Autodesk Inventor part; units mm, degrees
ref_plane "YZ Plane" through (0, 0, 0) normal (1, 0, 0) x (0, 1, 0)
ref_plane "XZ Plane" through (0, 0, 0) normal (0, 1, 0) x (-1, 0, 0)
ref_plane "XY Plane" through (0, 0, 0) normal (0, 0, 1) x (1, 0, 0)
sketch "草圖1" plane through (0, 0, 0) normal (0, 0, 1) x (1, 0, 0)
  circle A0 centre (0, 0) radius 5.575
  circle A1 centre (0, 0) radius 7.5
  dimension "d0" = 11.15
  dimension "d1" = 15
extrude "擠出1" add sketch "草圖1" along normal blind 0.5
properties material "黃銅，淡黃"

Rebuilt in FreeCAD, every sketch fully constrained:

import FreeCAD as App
import Part
import Sketcher

V = App.Vector

doc = App.newDocument("Part")
body = doc.addObject("PartDesign::Body", "Body")

# Sketch on XY plane
sketch1 = body.newObject("Sketcher::SketchObject", "Sketch")
sketch1.AttachmentSupport = (doc.getObject("XY_Plane"), [""])
sketch1.MapMode = "FlatFace"
sketch1.addGeometry(Part.Circle(V(0, 0, 0), V(0, 0, 1), 8), False)
sketch1.addGeometry(Part.Circle(V(0, 0, 0), V(0, 0, 1), 6), False)
sketch1.addConstraint(Sketcher.Constraint("Coincident", 0, 3, -1, 1))
sketch1.addConstraint(Sketcher.Constraint("Coincident", 1, 3, -1, 1))
sketch1.addConstraint(Sketcher.Constraint("Diameter", 0, 15.0))
sketch1.addConstraint(Sketcher.Constraint("Diameter", 1, 11.15))
pad1 = body.newObject("PartDesign::Pad", "Pad")
pad1.Profile = sketch1
pad1.Length = 0.5

doc.recompute()
